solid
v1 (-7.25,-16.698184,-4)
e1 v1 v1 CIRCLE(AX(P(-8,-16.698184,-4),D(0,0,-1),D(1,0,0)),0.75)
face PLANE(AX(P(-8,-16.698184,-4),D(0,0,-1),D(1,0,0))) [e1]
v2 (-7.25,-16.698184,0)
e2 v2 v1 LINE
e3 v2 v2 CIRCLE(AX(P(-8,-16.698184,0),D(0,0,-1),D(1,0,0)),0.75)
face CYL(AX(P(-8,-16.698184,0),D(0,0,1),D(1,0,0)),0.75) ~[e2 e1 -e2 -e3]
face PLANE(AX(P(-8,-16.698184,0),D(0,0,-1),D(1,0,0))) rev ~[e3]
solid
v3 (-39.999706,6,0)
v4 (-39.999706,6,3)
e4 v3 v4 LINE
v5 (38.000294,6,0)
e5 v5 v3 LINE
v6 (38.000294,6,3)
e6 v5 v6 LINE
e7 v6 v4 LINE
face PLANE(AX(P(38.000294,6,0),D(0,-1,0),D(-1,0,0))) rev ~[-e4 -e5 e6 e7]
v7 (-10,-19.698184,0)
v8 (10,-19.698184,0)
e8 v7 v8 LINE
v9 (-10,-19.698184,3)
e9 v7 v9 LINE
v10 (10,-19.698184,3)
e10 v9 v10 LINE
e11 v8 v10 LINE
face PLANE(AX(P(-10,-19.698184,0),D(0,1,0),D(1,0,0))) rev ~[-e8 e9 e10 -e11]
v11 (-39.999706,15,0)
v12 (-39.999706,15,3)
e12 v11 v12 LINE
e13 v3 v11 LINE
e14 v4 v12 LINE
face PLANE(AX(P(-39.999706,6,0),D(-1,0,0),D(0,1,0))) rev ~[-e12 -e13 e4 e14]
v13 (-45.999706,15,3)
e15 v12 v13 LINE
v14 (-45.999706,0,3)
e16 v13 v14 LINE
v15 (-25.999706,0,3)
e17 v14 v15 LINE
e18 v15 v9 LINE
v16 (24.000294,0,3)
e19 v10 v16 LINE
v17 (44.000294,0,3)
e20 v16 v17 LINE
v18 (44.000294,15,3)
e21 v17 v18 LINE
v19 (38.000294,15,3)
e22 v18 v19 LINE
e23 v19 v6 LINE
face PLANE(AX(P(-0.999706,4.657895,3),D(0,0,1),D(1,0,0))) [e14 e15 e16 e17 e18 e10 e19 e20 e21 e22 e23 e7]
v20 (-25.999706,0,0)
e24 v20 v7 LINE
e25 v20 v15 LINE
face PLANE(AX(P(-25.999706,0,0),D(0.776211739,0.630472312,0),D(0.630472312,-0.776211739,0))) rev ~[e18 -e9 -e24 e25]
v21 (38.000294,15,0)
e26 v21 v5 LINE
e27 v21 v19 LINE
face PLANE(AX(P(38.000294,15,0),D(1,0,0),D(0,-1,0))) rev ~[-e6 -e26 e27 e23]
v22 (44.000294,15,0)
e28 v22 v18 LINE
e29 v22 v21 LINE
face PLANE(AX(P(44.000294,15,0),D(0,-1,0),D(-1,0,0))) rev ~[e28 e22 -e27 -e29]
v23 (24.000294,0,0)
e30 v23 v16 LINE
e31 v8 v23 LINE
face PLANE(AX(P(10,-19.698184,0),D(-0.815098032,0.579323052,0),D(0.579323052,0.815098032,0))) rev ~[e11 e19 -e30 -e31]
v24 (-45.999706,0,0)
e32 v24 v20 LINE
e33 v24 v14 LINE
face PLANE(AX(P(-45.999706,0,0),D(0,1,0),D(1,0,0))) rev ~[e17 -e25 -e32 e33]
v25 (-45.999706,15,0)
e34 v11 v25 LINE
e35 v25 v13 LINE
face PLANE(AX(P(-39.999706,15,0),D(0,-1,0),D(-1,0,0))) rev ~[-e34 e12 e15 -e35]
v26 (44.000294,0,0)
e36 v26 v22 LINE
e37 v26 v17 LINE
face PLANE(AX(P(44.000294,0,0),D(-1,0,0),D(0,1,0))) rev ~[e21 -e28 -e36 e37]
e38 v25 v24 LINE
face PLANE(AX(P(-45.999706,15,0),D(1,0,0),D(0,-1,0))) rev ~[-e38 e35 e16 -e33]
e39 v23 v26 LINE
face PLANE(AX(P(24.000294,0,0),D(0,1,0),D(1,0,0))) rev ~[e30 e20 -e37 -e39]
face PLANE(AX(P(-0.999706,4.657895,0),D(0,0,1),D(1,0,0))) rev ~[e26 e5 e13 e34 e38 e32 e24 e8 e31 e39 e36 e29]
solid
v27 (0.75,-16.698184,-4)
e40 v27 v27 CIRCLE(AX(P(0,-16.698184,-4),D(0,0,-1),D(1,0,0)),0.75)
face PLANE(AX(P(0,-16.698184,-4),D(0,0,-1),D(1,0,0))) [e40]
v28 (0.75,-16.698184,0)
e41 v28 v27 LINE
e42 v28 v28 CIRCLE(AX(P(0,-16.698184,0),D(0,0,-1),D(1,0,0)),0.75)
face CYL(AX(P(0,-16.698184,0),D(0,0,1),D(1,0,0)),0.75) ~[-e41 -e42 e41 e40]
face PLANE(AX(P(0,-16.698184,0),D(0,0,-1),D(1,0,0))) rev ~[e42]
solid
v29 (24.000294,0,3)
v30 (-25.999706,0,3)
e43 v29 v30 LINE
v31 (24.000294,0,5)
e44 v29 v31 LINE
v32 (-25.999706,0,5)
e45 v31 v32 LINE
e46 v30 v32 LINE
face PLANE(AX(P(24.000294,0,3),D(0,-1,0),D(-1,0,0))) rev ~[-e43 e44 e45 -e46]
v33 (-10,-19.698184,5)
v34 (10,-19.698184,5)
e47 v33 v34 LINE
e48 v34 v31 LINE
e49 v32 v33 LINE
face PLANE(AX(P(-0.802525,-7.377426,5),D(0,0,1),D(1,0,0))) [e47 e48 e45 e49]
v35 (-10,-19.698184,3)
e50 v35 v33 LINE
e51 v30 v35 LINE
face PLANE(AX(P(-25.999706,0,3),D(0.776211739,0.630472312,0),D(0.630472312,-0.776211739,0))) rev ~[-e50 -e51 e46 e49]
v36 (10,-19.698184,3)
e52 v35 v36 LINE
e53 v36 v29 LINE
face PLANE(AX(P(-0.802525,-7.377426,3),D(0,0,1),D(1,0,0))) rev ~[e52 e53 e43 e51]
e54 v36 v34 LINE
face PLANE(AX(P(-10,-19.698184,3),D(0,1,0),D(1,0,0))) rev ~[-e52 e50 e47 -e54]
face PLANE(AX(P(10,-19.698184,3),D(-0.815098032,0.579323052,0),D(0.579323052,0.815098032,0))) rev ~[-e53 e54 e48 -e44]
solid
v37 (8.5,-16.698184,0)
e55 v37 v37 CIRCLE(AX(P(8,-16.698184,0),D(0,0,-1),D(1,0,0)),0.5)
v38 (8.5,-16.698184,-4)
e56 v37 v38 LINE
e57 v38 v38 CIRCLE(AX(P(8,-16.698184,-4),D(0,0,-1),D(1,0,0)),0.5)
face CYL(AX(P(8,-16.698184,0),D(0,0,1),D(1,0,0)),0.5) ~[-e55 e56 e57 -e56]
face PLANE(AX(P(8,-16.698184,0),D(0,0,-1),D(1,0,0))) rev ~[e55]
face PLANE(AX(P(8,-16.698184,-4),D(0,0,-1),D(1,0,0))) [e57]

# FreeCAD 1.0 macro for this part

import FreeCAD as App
import Part
import Sketcher
from FreeCAD import Vector
Q = App.Units.Quantity

doc = App.newDocument("Part")
params = doc.addObject("Spreadsheet::Sheet", "Params")
for row, (alias, value) in enumerate([
    ("sketch1_width", "20 mm"),
    ("sketch1_width2", "6 mm"),
    ("sketch1_width3", "78 mm"),
    ("sketch1_height", "15 mm"),
    ("sketch1_height2", "9 mm"),
    ("pad1_length", "3 mm"),
    ("sketch2_width", "50 mm"),
    ("sketch2_width2", "20 mm"),
    ("pad2_length", "2 mm"),
    ("sketch3_diameter", "1 mm"),
    ("sketch3_diameter2", "1.5 mm"),
    ("pad3_length", "4 mm"),
], start=1):
    params.set(f"A{row}", alias)
    params.set(f"B{row}", "=" + value)
    params.setAlias(f"B{row}", alias)

body = doc.addObject("PartDesign::Body", "Body")

sketch1 = body.newObject("Sketcher::SketchObject", "Sketch")
sketch1.AttachmentSupport = (doc.getObject("XY_Plane"), [""])
sketch1.MapMode = "FlatFace"
sketch1.addGeometry([
    Part.LineSegment(Vector(-46, 15, 0), Vector(-46, 0, 0)),
    Part.LineSegment(Vector(-46, 0, 0), Vector(-26, 0, 0)),
    Part.LineSegment(Vector(-26, 0, 0), Vector(-10, -20, 0)),
    Part.LineSegment(Vector(-10, -20, 0), Vector(10, -20, 0)),
    Part.LineSegment(Vector(10, -20, 0), Vector(24, 0, 0)),
    Part.LineSegment(Vector(24, 0, 0), Vector(44, 0, 0)),
    Part.LineSegment(Vector(44, 0, 0), Vector(44, 15, 0)),
    Part.LineSegment(Vector(44, 15, 0), Vector(38, 15, 0)),
    Part.LineSegment(Vector(38, 15, 0), Vector(38, 6, 0)),
    Part.LineSegment(Vector(38, 6, 0), Vector(-40, 6, 0)),
    Part.LineSegment(Vector(-40, 6, 0), Vector(-40, 15, 0)),
    Part.LineSegment(Vector(-40, 15, 0), Vector(-46, 15, 0)),
], False)
sketch1.addConstraint([
    Sketcher.Constraint("Coincident", 0, 2, 1, 1),
    Sketcher.Constraint("Coincident", 1, 2, 2, 1),
    Sketcher.Constraint("Coincident", 2, 2, 3, 1),
    Sketcher.Constraint("Coincident", 3, 2, 4, 1),
    Sketcher.Constraint("Coincident", 4, 2, 5, 1),
    Sketcher.Constraint("Coincident", 5, 2, 6, 1),
    Sketcher.Constraint("Coincident", 6, 2, 7, 1),
    Sketcher.Constraint("Coincident", 7, 2, 8, 1),
    Sketcher.Constraint("Coincident", 8, 2, 9, 1),
    Sketcher.Constraint("Coincident", 9, 2, 10, 1),
    Sketcher.Constraint("Coincident", 10, 2, 11, 1),
    Sketcher.Constraint("Coincident", 11, 2, 0, 1),
    Sketcher.Constraint("Vertical", 0),
    Sketcher.Constraint("Horizontal", 1),
    Sketcher.Constraint("Horizontal", 3),
    Sketcher.Constraint("Horizontal", 5),
    Sketcher.Constraint("Vertical", 6),
    Sketcher.Constraint("Horizontal", 7),
    Sketcher.Constraint("Vertical", 8),
    Sketcher.Constraint("Horizontal", 9),
    Sketcher.Constraint("Vertical", 10),
    Sketcher.Constraint("Horizontal", 11),
    Sketcher.Constraint("PointOnObject", 0, 2, -1),
    Sketcher.Constraint("PointOnObject", 4, 2, -1),
    Sketcher.Constraint("Horizontal", 7, 2, 10, 2),
    Sketcher.Constraint("Equal", 1, 3),
    Sketcher.Constraint("Equal", 3, 5),
    Sketcher.Constraint("Equal", 7, 11),
    Sketcher.Constraint("DistanceX", 1, 1, 1, 2, Q("20 mm")),
    Sketcher.Constraint("DistanceX", 7, 2, 7, 1, Q("6 mm")),
    Sketcher.Constraint("DistanceX", 9, 2, 9, 1, Q("78 mm")),
    Sketcher.Constraint("DistanceY", 0, 2, 0, 1, Q("15 mm")),
    Sketcher.Constraint("DistanceY", 8, 2, 8, 1, Q("9 mm")),
    Sketcher.Constraint("DistanceX", 2, 2, -1, 1, Q("10 mm")),
    Sketcher.Constraint("Distance", 2, Q("25.377333 mm")),
    Sketcher.Constraint("Distance", 4, Q("24.166644 mm")),
])
sketch1.setExpression("Constraints[28]", "Params.sketch1_width")
sketch1.setExpression("Constraints[29]", "Params.sketch1_width2")
sketch1.setExpression("Constraints[30]", "Params.sketch1_width3")
sketch1.setExpression("Constraints[31]", "Params.sketch1_height")
sketch1.setExpression("Constraints[32]", "Params.sketch1_height2")
pad1 = body.newObject("PartDesign::Pad", "Pad")
pad1.Profile = sketch1
pad1.setExpression("Length", "Params.pad1_length")
body2 = doc.addObject("PartDesign::Body", "Body001")

sketch2 = body2.newObject("Sketcher::SketchObject", "Sketch001")
sketch2.AttachmentSupport = (doc.getObject("XY_Plane001"), [""])
sketch2.MapMode = "FlatFace"
sketch2.AttachmentOffset = App.Placement(Vector(0, 0, 3), App.Rotation())
sketch2.addGeometry([
    Part.LineSegment(Vector(24, 0, 0), Vector(-26, 0, 0)),
    Part.LineSegment(Vector(-26, 0, 0), Vector(-10, -20, 0)),
    Part.LineSegment(Vector(-10, -20, 0), Vector(10, -20, 0)),
    Part.LineSegment(Vector(10, -20, 0), Vector(24, 0, 0)),
], False)
sketch2.addConstraint([
    Sketcher.Constraint("Coincident", 0, 2, 1, 1),
    Sketcher.Constraint("Coincident", 1, 2, 2, 1),
    Sketcher.Constraint("Coincident", 2, 2, 3, 1),
    Sketcher.Constraint("Coincident", 3, 2, 0, 1),
    Sketcher.Constraint("Horizontal", 0),
    Sketcher.Constraint("Horizontal", 2),
    Sketcher.Constraint("PointOnObject", 0, 2, -1),
    Sketcher.Constraint("DistanceX", 0, 2, 0, 1, Q("50 mm")),
    Sketcher.Constraint("DistanceX", 2, 1, 2, 2, Q("20 mm")),
    Sketcher.Constraint("DistanceX", 1, 2, -1, 1, Q("10 mm")),
    Sketcher.Constraint("Distance", 1, Q("25.377333 mm")),
    Sketcher.Constraint("Distance", 3, Q("24.166644 mm")),
])
sketch2.setExpression("Constraints[7]", "Params.sketch2_width")
sketch2.setExpression("Constraints[8]", "Params.sketch2_width2")
pad2 = body2.newObject("PartDesign::Pad", "Pad001")
pad2.Profile = sketch2
pad2.setExpression("Length", "Params.pad2_length")
body3 = doc.addObject("PartDesign::Body", "Body002")
body3.AllowCompound = True

sketch3 = body3.newObject("Sketcher::SketchObject", "Sketch002")
sketch3.AttachmentSupport = (doc.getObject("XY_Plane002"), [""])
sketch3.MapMode = "FlatFace"
sketch3.addGeometry([
    Part.Circle(Vector(0, -16.7, 0), Vector(0, 0, 1), 0.8),
    Part.Circle(Vector(8, -16.7, 0), Vector(0, 0, 1), 0.5),
    Part.Circle(Vector(-8, -16.7, 0), Vector(0, 0, 1), 0.8),
], False)
sketch3.addConstraint([
    Sketcher.Constraint("Equal", 0, 2),
    Sketcher.Constraint("Symmetric", 1, 3, 2, 3, -2),
    Sketcher.Constraint("PointOnObject", 0, 3, -2),
    Sketcher.Constraint("Horizontal", 0, 3, 1, 3),
    Sketcher.Constraint("Diameter", 1, Q("1 mm")),
    Sketcher.Constraint("Diameter", 0, Q("1.5 mm")),
    Sketcher.Constraint("DistanceX", -1, 1, 1, 3, Q("8 mm")),
    Sketcher.Constraint("DistanceY", 0, 3, -1, 1, Q("16.698184 mm")),
])
sketch3.setExpression("Constraints[4]", "Params.sketch3_diameter")
sketch3.setExpression("Constraints[5]", "Params.sketch3_diameter2")
pad3 = body3.newObject("PartDesign::Pad", "Pad002")
pad3.Profile = sketch3
pad3.setExpression("Length", "Params.pad3_length")
pad3.Reversed = True

doc.recompute()
